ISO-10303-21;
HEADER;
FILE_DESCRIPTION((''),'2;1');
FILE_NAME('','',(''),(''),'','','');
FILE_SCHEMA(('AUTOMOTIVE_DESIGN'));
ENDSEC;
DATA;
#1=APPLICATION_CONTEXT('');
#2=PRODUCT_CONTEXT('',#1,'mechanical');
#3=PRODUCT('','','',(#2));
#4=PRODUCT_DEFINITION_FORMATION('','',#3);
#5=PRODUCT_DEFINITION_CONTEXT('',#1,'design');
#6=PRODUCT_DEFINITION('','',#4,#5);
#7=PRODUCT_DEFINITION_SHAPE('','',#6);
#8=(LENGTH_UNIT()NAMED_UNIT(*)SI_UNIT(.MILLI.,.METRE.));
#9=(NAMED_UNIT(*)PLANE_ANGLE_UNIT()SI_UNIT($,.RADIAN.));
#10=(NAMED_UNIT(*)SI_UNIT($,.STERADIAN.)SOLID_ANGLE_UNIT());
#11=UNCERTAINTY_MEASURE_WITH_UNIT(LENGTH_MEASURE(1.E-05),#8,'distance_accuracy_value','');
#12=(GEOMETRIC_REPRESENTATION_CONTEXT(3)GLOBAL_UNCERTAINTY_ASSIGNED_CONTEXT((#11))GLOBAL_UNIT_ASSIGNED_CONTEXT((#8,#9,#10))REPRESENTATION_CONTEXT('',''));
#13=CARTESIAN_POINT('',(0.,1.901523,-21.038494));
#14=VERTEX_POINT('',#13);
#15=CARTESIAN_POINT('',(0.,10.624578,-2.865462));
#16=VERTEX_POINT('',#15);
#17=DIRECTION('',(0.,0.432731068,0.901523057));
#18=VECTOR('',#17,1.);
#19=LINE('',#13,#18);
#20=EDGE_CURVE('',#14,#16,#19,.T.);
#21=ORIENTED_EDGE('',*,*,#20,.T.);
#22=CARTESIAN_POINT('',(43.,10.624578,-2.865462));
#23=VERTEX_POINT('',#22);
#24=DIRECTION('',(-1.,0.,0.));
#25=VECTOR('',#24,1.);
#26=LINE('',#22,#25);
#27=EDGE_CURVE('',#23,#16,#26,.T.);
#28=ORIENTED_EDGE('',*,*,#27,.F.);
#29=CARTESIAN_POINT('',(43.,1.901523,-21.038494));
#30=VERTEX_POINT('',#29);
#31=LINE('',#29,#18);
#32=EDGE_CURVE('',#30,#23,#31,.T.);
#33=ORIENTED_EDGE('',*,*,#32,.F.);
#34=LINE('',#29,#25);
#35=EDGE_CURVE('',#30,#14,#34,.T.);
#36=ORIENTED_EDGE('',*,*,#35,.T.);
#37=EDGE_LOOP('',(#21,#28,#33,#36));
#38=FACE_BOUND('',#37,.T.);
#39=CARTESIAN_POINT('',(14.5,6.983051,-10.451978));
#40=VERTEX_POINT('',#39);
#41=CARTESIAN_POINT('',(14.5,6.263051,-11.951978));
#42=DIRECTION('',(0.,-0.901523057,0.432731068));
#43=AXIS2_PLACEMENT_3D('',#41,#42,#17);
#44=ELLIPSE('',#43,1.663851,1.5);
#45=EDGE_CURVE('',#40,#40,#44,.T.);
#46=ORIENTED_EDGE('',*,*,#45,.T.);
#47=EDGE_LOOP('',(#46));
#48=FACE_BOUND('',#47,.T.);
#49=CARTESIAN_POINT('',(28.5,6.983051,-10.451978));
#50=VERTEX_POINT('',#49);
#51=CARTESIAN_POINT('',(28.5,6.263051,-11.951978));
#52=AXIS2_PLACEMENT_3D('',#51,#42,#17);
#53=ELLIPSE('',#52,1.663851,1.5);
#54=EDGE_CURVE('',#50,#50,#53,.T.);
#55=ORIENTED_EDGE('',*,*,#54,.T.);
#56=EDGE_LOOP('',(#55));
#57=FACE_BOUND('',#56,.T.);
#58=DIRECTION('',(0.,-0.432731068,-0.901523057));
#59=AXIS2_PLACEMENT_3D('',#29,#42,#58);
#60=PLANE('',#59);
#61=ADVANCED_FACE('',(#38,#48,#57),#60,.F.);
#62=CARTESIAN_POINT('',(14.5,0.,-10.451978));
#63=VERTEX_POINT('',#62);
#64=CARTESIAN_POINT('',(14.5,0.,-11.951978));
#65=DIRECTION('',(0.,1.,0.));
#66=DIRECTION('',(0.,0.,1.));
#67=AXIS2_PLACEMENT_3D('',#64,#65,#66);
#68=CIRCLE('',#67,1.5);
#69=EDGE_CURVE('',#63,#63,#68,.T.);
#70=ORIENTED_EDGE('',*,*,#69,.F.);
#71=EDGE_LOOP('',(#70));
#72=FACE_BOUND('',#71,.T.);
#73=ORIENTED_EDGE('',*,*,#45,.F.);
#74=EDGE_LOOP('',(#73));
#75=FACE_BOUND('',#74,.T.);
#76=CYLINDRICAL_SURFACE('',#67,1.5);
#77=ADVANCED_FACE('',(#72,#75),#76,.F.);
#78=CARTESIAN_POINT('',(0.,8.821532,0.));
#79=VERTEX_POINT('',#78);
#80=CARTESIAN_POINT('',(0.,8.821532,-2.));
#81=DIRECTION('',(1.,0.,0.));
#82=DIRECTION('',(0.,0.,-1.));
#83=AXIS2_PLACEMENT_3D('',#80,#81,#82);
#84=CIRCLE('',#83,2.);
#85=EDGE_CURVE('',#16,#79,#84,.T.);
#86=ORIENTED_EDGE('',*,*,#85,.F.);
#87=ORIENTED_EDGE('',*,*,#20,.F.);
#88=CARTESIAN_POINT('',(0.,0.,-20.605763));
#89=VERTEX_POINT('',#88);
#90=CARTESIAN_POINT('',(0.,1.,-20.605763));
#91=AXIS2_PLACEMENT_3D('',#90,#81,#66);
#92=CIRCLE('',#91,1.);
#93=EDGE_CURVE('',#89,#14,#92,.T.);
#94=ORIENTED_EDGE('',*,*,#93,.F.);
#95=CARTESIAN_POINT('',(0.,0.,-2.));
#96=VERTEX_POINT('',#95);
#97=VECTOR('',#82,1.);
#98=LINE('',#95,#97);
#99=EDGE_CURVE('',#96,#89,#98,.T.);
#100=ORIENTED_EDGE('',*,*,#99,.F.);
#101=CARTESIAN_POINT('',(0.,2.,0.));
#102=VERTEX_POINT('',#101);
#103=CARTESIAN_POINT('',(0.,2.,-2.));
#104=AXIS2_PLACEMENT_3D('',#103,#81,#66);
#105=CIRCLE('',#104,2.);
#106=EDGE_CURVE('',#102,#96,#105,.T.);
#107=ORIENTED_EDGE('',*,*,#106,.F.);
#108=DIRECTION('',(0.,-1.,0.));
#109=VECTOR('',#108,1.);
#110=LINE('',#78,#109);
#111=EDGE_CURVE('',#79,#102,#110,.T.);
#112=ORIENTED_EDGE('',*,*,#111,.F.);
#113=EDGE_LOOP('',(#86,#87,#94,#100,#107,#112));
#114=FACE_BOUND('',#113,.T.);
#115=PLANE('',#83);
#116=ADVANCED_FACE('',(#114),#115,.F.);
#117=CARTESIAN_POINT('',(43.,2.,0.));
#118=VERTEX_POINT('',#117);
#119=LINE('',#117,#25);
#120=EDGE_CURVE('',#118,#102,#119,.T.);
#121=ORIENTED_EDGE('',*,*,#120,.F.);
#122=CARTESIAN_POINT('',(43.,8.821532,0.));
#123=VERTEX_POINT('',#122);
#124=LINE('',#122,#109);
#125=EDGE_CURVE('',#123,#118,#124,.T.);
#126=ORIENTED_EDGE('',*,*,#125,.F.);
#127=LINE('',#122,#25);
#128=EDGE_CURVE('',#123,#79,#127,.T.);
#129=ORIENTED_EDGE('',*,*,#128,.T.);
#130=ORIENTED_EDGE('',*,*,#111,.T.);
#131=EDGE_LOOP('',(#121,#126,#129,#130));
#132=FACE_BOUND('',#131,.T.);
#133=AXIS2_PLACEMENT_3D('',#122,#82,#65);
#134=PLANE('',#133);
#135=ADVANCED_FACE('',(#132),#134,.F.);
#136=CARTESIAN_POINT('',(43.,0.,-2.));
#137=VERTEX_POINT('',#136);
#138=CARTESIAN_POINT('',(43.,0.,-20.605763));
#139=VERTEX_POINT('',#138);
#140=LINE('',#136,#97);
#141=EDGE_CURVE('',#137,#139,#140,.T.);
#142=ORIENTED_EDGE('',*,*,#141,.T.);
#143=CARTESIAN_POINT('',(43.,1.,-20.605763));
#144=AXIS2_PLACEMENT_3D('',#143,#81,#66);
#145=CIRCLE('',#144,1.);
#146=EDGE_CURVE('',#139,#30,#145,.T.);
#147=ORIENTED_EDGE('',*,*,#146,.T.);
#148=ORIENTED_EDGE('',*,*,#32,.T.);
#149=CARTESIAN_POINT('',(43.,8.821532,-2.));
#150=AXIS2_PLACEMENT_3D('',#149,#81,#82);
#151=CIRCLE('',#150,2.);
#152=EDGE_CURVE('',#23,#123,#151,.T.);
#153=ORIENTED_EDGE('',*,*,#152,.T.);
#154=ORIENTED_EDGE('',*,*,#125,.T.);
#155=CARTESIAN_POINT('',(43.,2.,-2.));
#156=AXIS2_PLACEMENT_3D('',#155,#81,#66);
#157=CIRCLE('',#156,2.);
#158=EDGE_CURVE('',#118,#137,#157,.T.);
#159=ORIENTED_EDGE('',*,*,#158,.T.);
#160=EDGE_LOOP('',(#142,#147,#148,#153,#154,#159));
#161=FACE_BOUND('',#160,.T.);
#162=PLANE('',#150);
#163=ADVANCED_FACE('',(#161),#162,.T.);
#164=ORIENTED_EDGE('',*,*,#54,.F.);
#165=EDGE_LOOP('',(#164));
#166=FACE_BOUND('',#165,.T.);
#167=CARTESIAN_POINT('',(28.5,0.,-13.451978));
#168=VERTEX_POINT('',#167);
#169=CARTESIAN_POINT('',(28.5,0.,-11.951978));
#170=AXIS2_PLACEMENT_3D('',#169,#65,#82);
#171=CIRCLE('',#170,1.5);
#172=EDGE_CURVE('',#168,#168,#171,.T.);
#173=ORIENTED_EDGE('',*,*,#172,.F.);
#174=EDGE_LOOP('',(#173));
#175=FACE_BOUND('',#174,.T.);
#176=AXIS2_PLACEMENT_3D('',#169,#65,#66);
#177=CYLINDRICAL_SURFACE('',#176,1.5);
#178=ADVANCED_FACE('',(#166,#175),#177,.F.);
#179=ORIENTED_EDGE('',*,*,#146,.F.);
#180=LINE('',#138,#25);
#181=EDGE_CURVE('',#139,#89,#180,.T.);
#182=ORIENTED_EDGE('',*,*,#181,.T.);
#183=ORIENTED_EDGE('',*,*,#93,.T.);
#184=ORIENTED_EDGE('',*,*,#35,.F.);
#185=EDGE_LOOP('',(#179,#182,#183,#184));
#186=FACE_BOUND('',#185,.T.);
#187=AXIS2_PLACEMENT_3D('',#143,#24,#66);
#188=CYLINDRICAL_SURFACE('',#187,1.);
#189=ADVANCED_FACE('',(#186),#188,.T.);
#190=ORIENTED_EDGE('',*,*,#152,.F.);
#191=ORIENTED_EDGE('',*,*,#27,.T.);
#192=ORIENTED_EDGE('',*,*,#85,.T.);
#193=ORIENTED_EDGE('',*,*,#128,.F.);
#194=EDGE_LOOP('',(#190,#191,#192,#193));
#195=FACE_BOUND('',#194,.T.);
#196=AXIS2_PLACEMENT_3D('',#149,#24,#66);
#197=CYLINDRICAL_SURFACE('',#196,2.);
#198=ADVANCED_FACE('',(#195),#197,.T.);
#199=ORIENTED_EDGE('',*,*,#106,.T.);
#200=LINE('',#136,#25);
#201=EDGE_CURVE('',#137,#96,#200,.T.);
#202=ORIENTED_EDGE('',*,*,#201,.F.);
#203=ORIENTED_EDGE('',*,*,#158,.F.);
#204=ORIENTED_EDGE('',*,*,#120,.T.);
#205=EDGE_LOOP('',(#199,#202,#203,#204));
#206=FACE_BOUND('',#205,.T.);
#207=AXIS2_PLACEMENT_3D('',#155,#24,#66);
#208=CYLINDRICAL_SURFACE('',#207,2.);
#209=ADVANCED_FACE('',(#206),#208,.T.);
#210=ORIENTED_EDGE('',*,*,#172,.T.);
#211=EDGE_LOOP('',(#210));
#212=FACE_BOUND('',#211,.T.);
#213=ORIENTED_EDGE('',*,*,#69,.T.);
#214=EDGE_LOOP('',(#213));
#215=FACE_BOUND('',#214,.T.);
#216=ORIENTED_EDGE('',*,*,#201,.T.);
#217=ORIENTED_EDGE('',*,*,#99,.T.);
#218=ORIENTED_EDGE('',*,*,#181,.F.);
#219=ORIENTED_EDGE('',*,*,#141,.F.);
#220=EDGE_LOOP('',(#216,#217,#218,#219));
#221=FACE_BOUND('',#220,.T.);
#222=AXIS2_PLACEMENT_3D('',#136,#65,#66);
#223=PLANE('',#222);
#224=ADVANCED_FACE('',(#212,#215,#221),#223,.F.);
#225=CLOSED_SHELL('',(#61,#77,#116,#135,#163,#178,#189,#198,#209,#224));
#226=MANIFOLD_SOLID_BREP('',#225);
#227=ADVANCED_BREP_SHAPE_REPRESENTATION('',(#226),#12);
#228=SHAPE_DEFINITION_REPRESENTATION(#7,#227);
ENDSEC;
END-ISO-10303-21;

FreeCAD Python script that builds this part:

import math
import FreeCAD as App
import Part
import Sketcher
Q = App.Units.Quantity

doc = App.newDocument("Part")
body = doc.addObject("PartDesign::Body", "Body")

# Sketch on YZ plane
sketch1 = doc.addObject("Sketcher::SketchObject", "Sketch")
body.addObject(sketch1)
sketch1.AttachmentSupport = (doc.YZ_Plane, [""])
sketch1.MapMode = "FlatFace"
sketch1.addGeometry([
    Part.LineSegment(App.Vector(0, -2, 0), App.Vector(0, -20.6, 0)),  # 0
    Part.ArcOfCircle(Part.Circle(App.Vector(1, -20.6, 0), App.Vector(0, 0, 1), 1), math.radians(180), math.radians(334)),  # 1
    Part.LineSegment(App.Vector(1.9, -21, 0), App.Vector(10.6, -2.9, 0)),  # 2
    Part.ArcOfCircle(Part.Circle(App.Vector(8.8, -2, 0), App.Vector(0, 0, 1), 2), math.radians(-26), math.radians(90)),  # 3
    Part.LineSegment(App.Vector(8.8, 0, 0), App.Vector(2, 0, 0)),  # 4
    Part.ArcOfCircle(Part.Circle(App.Vector(2, -2, 0), App.Vector(0, 0, 1), 2), math.radians(90), math.radians(180)),  # 5
], False)
sketch1.addConstraint([
    Sketcher.Constraint("Tangent", 0, 2, 1, 1),
    Sketcher.Constraint("Tangent", 1, 2, 2, 1),
    Sketcher.Constraint("Tangent", 2, 2, 3, 1),
    Sketcher.Constraint("Tangent", 3, 2, 4, 1),
    Sketcher.Constraint("Tangent", 4, 2, 5, 1),
    Sketcher.Constraint("Tangent", 5, 2, 0, 1),
    Sketcher.Constraint("Vertical", 0),
    Sketcher.Constraint("Horizontal", 4),
    Sketcher.Constraint("Equal", 3, 5),
    Sketcher.Constraint("PointOnObject", 0, 2, -2),
    Sketcher.Constraint("PointOnObject", 3, 2, -1),
    Sketcher.Constraint("Radius", 1, Q("1 mm")),
    Sketcher.Constraint("Radius", 3, Q("2 mm")),
    Sketcher.Constraint("DistanceY", 1, 3, 2, 2, Q("17.7403 mm")),
    Sketcher.Constraint("DistanceX", 4, 2, 4, 1, Q("6.821532 mm")),
])
pad1 = doc.addObject("PartDesign::Pad", "Pad")
body.addObject(pad1)
pad1.Profile = sketch1
pad1.Length = 43

# Sketch on XZ plane
sketch2 = doc.addObject("Sketcher::SketchObject", "Sketch001")
body.addObject(sketch2)
sketch2.AttachmentSupport = (doc.XZ_Plane, [""])
sketch2.MapMode = "FlatFace"
sketch2.AttachmentOffset = App.Placement(App.Vector(0, 0, -10), App.Rotation())
sketch2.addGeometry([
    Part.Circle(App.Vector(14.5, -12, 0), App.Vector(0, 0, 1), 1.5),
    Part.Circle(App.Vector(28.5, -12, 0), App.Vector(0, 0, 1), 1.5),
], False)
sketch2.addConstraint([
    Sketcher.Constraint("Equal", 0, 1),
    Sketcher.Constraint("Horizontal", 0, 3, 1, 3),
    Sketcher.Constraint("Diameter", 0, Q("3 mm")),
    Sketcher.Constraint("DistanceX", 0, 3, 1, 3, Q("14 mm")),
    Sketcher.Constraint("DistanceX", -1, 1, 0, 3, Q("14.5 mm")),
    Sketcher.Constraint("DistanceY", 0, 3, -1, 1, Q("11.951978 mm")),
])
pocket1 = doc.addObject("PartDesign::Pocket", "Pocket")
body.addObject(pocket1)
pocket1.Profile = sketch2
pocket1.Type = "ThroughAll"
pocket1.Reversed = True

doc.recompute()
